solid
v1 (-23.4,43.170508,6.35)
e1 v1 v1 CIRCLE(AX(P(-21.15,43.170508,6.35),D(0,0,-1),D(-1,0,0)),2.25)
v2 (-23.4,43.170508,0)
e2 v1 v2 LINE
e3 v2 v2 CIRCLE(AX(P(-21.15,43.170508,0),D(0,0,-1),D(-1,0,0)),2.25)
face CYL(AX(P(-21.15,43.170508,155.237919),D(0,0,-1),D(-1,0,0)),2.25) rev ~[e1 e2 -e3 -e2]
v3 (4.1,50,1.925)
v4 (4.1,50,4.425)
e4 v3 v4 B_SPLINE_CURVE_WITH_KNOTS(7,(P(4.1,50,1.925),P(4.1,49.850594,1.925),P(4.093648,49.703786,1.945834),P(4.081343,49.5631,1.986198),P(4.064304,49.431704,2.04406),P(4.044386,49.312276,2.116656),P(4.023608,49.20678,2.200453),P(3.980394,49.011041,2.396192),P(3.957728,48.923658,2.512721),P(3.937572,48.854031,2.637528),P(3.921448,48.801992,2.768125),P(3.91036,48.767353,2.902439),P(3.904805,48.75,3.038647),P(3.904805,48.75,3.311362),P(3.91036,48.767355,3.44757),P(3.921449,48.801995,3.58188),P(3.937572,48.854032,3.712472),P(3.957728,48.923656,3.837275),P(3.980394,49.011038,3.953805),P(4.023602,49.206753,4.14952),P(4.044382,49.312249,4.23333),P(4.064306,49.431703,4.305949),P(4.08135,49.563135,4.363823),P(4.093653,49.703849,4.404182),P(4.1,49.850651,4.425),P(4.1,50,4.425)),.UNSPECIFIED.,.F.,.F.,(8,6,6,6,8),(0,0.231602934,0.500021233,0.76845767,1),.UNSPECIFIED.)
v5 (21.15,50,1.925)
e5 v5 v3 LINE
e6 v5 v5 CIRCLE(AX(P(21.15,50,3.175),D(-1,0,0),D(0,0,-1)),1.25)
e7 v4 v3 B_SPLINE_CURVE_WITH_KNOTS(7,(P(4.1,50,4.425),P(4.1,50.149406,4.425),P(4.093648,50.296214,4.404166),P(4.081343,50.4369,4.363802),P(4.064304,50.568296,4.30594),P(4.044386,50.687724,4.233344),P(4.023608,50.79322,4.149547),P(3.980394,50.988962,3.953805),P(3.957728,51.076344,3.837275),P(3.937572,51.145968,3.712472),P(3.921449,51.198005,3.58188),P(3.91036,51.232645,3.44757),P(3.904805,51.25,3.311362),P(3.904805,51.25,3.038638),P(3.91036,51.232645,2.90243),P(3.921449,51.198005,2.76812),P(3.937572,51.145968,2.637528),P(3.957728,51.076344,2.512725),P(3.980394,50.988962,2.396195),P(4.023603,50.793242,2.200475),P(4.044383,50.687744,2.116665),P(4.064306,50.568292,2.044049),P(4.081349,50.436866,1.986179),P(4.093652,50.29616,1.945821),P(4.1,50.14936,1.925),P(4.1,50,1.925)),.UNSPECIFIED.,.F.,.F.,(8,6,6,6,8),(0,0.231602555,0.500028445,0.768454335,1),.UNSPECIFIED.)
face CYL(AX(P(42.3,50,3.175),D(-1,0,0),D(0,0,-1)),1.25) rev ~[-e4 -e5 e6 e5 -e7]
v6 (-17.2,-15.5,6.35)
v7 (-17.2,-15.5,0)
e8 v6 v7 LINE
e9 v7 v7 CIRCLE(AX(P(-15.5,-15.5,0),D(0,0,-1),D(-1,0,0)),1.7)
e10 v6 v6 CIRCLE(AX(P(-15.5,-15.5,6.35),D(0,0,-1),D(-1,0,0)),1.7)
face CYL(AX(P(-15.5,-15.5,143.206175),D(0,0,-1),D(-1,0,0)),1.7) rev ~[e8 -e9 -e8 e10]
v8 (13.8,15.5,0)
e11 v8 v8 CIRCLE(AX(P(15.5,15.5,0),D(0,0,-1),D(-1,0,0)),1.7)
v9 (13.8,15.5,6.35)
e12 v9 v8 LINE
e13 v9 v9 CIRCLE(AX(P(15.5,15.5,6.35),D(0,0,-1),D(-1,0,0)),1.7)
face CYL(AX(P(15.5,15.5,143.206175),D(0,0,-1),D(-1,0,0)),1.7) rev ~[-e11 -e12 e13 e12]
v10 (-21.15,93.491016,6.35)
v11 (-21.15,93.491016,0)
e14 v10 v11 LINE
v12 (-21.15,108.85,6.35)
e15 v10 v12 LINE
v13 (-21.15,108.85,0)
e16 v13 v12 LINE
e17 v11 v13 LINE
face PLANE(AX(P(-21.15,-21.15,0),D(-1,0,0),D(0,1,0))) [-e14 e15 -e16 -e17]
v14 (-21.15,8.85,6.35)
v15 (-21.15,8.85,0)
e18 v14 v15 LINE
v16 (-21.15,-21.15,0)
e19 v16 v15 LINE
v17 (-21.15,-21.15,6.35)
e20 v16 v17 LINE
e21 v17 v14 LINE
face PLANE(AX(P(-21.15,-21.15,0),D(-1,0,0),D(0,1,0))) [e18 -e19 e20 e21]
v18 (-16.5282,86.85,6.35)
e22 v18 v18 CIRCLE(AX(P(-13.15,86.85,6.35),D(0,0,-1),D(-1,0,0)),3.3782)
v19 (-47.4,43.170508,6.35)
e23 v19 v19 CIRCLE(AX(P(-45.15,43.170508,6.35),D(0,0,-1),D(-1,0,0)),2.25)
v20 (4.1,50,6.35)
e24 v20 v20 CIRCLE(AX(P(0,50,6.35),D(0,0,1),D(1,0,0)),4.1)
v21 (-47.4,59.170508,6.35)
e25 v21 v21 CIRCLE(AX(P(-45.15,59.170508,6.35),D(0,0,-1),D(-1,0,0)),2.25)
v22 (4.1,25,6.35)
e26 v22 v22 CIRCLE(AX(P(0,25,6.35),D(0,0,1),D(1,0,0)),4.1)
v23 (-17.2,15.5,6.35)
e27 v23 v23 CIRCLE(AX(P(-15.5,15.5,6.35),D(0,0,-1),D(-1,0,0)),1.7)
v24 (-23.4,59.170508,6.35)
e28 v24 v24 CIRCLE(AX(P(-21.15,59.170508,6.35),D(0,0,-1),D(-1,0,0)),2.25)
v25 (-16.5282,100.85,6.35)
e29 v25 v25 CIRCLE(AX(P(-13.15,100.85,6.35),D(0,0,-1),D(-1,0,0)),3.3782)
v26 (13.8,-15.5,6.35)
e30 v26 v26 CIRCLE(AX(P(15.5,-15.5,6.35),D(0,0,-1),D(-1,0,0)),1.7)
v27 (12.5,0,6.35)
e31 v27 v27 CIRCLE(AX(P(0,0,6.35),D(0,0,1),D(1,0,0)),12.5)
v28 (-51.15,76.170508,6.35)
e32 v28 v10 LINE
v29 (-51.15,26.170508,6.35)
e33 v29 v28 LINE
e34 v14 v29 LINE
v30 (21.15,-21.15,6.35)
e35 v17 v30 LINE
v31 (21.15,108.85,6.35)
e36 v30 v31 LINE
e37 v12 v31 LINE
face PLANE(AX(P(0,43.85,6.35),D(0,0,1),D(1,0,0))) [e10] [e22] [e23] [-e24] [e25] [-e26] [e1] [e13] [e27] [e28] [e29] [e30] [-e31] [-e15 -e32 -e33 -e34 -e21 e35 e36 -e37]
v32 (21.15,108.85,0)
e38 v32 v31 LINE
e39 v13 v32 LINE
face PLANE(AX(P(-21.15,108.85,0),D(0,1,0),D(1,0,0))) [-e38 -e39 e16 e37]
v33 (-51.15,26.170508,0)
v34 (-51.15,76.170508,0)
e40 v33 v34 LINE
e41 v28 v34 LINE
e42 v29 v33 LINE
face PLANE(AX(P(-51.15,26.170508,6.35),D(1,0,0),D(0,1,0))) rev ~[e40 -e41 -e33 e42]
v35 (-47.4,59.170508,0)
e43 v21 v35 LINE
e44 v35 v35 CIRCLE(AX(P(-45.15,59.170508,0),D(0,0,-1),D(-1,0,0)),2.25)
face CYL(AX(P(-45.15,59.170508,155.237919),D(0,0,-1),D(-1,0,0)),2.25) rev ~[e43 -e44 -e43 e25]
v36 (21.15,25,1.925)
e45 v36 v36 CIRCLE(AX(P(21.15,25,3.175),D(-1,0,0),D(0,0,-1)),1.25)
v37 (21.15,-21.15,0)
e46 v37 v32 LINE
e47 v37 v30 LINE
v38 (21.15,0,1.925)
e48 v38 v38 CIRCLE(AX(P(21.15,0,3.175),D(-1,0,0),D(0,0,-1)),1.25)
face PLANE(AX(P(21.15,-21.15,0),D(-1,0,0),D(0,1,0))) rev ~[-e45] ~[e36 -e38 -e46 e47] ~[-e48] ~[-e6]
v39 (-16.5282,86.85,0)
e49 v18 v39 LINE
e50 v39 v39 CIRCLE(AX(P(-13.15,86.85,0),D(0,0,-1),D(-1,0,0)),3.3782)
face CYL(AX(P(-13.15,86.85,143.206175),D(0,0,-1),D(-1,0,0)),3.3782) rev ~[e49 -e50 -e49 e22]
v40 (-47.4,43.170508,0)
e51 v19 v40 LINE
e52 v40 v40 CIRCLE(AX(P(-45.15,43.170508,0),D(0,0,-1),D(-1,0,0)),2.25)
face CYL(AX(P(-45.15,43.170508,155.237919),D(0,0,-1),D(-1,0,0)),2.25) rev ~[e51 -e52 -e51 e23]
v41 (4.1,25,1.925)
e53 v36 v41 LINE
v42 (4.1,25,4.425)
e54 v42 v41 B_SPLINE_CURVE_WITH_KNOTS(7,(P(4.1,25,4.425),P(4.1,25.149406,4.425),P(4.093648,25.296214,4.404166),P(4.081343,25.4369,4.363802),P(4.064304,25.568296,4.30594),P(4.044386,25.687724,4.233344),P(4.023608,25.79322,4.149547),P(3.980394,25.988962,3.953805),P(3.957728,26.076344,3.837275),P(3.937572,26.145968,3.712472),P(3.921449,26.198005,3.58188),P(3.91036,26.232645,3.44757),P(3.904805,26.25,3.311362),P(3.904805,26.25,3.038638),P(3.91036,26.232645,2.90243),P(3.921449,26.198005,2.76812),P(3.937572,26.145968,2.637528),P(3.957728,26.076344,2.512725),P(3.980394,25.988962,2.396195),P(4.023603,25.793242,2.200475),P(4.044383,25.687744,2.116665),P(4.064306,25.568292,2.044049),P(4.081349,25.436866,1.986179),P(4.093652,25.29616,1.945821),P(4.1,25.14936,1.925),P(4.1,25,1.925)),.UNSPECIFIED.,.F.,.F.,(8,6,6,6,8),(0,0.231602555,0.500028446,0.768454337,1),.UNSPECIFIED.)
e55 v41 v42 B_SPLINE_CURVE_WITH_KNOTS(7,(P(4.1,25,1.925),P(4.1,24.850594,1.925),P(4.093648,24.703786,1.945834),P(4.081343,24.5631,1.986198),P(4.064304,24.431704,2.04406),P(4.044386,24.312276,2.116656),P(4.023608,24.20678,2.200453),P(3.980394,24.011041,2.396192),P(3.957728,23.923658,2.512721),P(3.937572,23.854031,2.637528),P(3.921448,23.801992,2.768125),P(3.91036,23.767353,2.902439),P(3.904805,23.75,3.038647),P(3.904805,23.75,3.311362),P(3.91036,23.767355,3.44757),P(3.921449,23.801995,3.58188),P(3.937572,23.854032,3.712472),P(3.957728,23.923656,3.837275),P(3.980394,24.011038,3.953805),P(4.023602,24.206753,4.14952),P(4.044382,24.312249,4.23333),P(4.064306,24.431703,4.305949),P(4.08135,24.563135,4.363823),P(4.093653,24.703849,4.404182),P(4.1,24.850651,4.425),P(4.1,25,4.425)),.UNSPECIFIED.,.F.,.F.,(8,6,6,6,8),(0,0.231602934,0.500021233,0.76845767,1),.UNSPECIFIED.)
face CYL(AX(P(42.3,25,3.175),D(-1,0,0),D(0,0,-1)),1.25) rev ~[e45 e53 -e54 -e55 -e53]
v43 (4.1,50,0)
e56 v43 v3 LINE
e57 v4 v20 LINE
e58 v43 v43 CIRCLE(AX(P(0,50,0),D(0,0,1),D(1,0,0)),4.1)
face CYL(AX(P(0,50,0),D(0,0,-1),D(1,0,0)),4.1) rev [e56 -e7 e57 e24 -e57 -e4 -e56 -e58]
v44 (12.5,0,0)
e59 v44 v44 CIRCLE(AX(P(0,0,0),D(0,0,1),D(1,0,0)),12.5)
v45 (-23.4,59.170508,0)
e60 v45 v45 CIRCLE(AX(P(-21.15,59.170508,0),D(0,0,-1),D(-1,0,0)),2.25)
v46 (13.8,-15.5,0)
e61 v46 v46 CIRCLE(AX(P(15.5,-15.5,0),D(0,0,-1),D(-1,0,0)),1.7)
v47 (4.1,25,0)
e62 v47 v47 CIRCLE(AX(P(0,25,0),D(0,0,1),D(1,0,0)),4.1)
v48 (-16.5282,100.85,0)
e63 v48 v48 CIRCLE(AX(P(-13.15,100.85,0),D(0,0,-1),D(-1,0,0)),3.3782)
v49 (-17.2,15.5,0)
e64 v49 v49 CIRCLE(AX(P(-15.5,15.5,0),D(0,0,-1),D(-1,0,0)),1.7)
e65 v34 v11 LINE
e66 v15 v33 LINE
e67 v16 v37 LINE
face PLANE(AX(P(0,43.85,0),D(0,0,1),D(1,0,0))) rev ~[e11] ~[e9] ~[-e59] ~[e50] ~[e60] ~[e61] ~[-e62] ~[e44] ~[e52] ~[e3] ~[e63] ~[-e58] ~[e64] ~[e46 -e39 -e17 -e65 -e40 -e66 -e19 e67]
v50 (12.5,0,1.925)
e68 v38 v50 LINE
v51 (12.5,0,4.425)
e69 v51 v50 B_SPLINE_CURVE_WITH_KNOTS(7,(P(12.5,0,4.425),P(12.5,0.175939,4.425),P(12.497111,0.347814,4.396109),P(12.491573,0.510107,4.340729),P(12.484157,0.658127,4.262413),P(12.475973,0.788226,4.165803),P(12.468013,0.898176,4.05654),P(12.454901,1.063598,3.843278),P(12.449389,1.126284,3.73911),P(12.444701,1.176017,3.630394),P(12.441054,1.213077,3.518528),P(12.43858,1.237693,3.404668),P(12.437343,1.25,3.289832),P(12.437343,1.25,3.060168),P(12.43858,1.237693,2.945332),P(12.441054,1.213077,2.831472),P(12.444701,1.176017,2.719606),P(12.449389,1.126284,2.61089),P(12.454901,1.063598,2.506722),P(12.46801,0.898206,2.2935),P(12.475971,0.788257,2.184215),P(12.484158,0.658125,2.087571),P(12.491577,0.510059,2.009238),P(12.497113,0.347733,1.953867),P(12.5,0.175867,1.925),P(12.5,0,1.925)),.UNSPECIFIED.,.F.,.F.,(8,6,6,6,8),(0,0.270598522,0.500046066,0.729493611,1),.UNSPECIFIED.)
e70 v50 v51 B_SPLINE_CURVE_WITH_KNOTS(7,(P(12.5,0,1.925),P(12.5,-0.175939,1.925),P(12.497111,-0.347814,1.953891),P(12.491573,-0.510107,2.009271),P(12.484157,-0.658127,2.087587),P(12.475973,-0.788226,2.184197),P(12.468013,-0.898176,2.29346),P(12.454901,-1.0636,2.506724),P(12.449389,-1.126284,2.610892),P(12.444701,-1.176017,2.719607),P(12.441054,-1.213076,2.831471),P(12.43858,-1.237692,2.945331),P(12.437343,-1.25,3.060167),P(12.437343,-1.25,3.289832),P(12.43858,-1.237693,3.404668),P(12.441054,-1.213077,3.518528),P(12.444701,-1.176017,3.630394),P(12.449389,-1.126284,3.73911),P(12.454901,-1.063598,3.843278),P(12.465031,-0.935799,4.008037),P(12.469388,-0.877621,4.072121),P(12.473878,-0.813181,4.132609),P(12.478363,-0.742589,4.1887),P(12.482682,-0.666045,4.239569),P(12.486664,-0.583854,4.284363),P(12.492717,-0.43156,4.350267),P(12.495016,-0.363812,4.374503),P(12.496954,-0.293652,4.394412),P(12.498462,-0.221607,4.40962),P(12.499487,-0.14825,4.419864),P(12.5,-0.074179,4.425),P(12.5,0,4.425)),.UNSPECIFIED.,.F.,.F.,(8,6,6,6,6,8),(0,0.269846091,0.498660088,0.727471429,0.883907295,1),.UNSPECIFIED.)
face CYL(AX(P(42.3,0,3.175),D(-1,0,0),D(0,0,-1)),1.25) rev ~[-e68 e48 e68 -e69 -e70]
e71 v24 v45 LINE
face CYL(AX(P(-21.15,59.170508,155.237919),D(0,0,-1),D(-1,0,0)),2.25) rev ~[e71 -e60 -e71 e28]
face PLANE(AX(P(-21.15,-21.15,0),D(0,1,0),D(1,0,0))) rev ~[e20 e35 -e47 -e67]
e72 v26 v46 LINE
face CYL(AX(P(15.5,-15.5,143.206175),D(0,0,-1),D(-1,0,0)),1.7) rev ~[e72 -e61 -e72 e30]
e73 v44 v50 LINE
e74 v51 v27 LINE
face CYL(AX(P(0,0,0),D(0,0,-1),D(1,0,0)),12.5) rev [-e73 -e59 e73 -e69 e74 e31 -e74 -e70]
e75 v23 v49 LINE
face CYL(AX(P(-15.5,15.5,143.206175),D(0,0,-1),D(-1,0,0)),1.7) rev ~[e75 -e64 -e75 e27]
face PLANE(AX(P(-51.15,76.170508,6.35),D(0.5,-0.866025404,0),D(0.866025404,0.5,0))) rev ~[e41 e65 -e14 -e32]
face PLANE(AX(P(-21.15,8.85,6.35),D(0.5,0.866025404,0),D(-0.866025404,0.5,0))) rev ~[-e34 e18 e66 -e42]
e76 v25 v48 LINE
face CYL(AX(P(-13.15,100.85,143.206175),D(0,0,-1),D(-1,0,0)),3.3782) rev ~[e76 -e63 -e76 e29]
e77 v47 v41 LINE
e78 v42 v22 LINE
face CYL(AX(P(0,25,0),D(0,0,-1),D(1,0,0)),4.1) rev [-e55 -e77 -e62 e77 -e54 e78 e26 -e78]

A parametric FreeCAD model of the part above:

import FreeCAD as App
import Part
import Sketcher

V = App.Vector
Q = App.Units.Quantity


def add_polygon(sketch, points):
    """Adds a closed chain of lines whose ends are joined by coincident constraints."""
    first, n = sketch.GeometryCount, len(points)
    for a, b in zip(points, points[1:] + points[:1]):
        sketch.addGeometry(Part.LineSegment(App.Vector(*a, 0), App.Vector(*b, 0)), False)
    for i in range(n):
        sketch.addConstraint(Sketcher.Constraint("Coincident", first + i, 2, first + (i + 1) % n, 1))

doc = App.newDocument("Part")
body = doc.addObject("PartDesign::Body", "Body")

sketch1 = doc.addObject("Sketcher::SketchObject", "Sketch")
body.addObject(sketch1)
sketch1.AttachmentSupport = (doc.XY_Plane, [""])
sketch1.MapMode = "FlatFace"
add_polygon(sketch1, [(-21.15, 108.85), (-21.15, -21.15), (21.15, -21.15), (21.15, 108.85)])
sketch1.addGeometry(Part.Circle(V(0, 0, 0), V(0, 0, 1), 12.5), False)
sketch1.addGeometry(Part.Circle(V(0, 25, 0), V(0, 0, 1), 4.1), False)
sketch1.addGeometry(Part.Circle(V(0, 50, 0), V(0, 0, 1), 4.1), False)
sketch1.addConstraint([
    Sketcher.Constraint("Vertical", 0),
    Sketcher.Constraint("Horizontal", 1),
    Sketcher.Constraint("Vertical", 2),
    Sketcher.Constraint("Horizontal", 3),
    Sketcher.Constraint("Coincident", 4, 3, -1, 1),
    Sketcher.Constraint("Equal", 5, 6),
    Sketcher.Constraint("PointOnObject", 5, 3, -2),
    Sketcher.Constraint("PointOnObject", 6, 3, -2),
    Sketcher.Constraint("Diameter", 4, 25.0),
    Sketcher.Constraint("Diameter", 5, 8.2),
    Sketcher.Constraint("DistanceY", 0, 2, 0, 1, 130.0),
    Sketcher.Constraint("DistanceX", 1, 1, 1, 2, 42.3),
    Sketcher.Constraint("DistanceY", -1, 1, 5, 3, 25.0),
    Sketcher.Constraint("DistanceY", -1, 1, 6, 3, 50.0),
    Sketcher.Constraint("DistanceX", 0, 2, -1, 1, 21.15),
    Sketcher.Constraint("DistanceY", 0, 2, -1, 1, 21.15),
])
pad1 = doc.addObject("PartDesign::Pad", "Pad")
body.addObject(pad1)
pad1.Profile = sketch1
pad1.Length = 6.35

sketch2 = doc.addObject("Sketcher::SketchObject", "Sketch001")
body.addObject(sketch2)
sketch2.AttachmentSupport = (doc.YZ_Plane, [""])
sketch2.MapMode = "FlatFace"
sketch2.AttachmentOffset = App.Placement(V(0, 0, 21.15), App.Rotation())
sketch2.addGeometry([
    Part.Circle(V(50, 3.175, 0), V(0, 0, 1), 1.25),
    Part.Circle(V(0, 3.175, 0), V(0, 0, 1), 1.25),
    Part.Circle(V(25, 3.175, 0), V(0, 0, 1), 1.25),
], False)
sketch2.addConstraint([
    Sketcher.Constraint("Equal", 0, 1),
    Sketcher.Constraint("Equal", 1, 2),
    Sketcher.Constraint("PointOnObject", 1, 3, -2),
    Sketcher.Constraint("Horizontal", 0, 3, 1, 3),
    Sketcher.Constraint("Horizontal", 1, 3, 2, 3),
    Sketcher.Constraint("Diameter", 0, 2.5),
    Sketcher.Constraint("DistanceX", -1, 1, 0, 3, 50.0),
    Sketcher.Constraint("DistanceX", -1, 1, 2, 3, 25.0),
    Sketcher.Constraint("DistanceY", -1, 1, 0, 3, 3.175),
])
doc.recompute()
hole = doc.addObject("PartDesign::Hole", "Hole")
body.addObject(hole)
hole.Profile = sketch2
hole.ThreadType = "None"
hole.Diameter = 2.5
hole.DepthType = "Dimension"
hole.Depth = 21.15
hole.DrillPoint = "Angled"
hole.DrillPointAngle = 118

sketch3 = doc.addObject("Sketcher::SketchObject", "Sketch002")
body.addObject(sketch3)
sketch3.AttachmentSupport = (doc.XY_Plane, [""])
sketch3.MapMode = "FlatFace"
sketch3.AttachmentOffset = App.Placement(V(0, 0, 6.35), App.Rotation())
sketch3.addGeometry([
    Part.Circle(V(-15.5, 15.5, 0), V(0, 0, 1), 1.7),
    Part.Circle(V(-15.5, -15.5, 0), V(0, 0, 1), 1.7),
    Part.Circle(V(15.5, -15.5, 0), V(0, 0, 1), 1.7),
    Part.Circle(V(15.5, 15.5, 0), V(0, 0, 1), 1.7),
], False)
sketch3.addConstraint([
    Sketcher.Constraint("Equal", 0, 1),
    Sketcher.Constraint("Equal", 1, 2),
    Sketcher.Constraint("Equal", 2, 3),
    Sketcher.Constraint("Symmetric", 0, 3, 2, 3, -1, 1),
    Sketcher.Constraint("Symmetric", 1, 3, 3, 3, -1, 1),
    Sketcher.Constraint("Symmetric", 1, 3, 2, 3, -2),
    Sketcher.Constraint("Diameter", 0, 3.4),
    Sketcher.Constraint("DistanceY", 1, 3, 0, 3, 31.0),
    Sketcher.Constraint("DistanceX", 1, 3, 2, 3, 31.0),
])
doc.recompute()
hole2 = doc.addObject("PartDesign::Hole", "Hole001")
body.addObject(hole2)
hole2.Profile = sketch3
hole2.ThreadType = "None"
hole2.Diameter = 3.4
hole2.DepthType = "ThroughAll"

sketch4 = doc.addObject("Sketcher::SketchObject", "Sketch003")
body.addObject(sketch4)
sketch4.AttachmentSupport = (doc.XY_Plane, [""])
sketch4.MapMode = "FlatFace"
sketch4.AttachmentOffset = App.Placement(V(0, 0, 6.35), App.Rotation())
sketch4.addGeometry([
    Part.Circle(V(-13.15, 86.85, 0), V(0, 0, 1), 3.3782),
    Part.Circle(V(-13.15, 100.85, 0), V(0, 0, 1), 3.3782),
], False)
sketch4.addConstraint([
    Sketcher.Constraint("Equal", 0, 1),
    Sketcher.Constraint("Vertical", 0, 3, 1, 3),
    Sketcher.Constraint("DistanceY", 0, 3, 1, 3, 14.0),
    Sketcher.Constraint("Diameter", 0, 6.7564),
    Sketcher.Constraint("DistanceX", 0, 3, -1, 1, 13.15),
    Sketcher.Constraint("DistanceY", -1, 1, 0, 3, 86.85),
])
doc.recompute()
hole3 = doc.addObject("PartDesign::Hole", "Hole002")
body.addObject(hole3)
hole3.Profile = sketch4
hole3.ThreadType = "None"
hole3.Diameter = 6.7564
hole3.DepthType = "ThroughAll"

sketch5 = doc.addObject("Sketcher::SketchObject", "Sketch004")
body.addObject(sketch5)
sketch5.AttachmentSupport = (doc.XY_Plane, [""])
sketch5.MapMode = "FlatFace"
sketch5.AttachmentOffset = App.Placement(V(0, 0, 6.35), App.Rotation())
add_polygon(sketch5, [(-51.15, 26.170508), (-21.15, 8.85), (-21.15, 93.491016), (-51.15, 76.170508)])
sketch5.addConstraint([
    Sketcher.Constraint("Vertical", 1),
    Sketcher.Constraint("Vertical", 3),
    Sketcher.Constraint("Equal", 0, 2),
    Sketcher.Constraint("DistanceY", 3, 2, 3, 1, 50.0),
    Sketcher.Constraint("Angle", 0, Q("-30 deg")),
    Sketcher.Constraint("DistanceX", 2, 2, 1, 2, 30.0),
    Sketcher.Constraint("DistanceX", 0, 2, -1, 1, 21.15),
    Sketcher.Constraint("DistanceY", -1, 1, 0, 2, 8.85),
])
pad2 = doc.addObject("PartDesign::Pad", "Pad001")
body.addObject(pad2)
pad2.Profile = sketch5
pad2.Length = 6.35
pad2.Reversed = True

sketch6 = doc.addObject("Sketcher::SketchObject", "Sketch005")
body.addObject(sketch6)
sketch6.AttachmentSupport = (doc.XY_Plane, [""])
sketch6.MapMode = "FlatFace"
sketch6.AttachmentOffset = App.Placement(V(0, 0, 6.35), App.Rotation())
sketch6.addGeometry([
    Part.Circle(V(-45.15, 59.170508, 0), V(0, 0, 1), 2.25),
    Part.Circle(V(-21.15, 59.170508, 0), V(0, 0, 1), 2.25),
    Part.Circle(V(-21.15, 43.170508, 0), V(0, 0, 1), 2.25),
    Part.Circle(V(-45.15, 43.170508, 0), V(0, 0, 1), 2.25),
], False)
sketch6.addConstraint([
    Sketcher.Constraint("Equal", 0, 1),
    Sketcher.Constraint("Equal", 1, 2),
    Sketcher.Constraint("Equal", 2, 3),
    Sketcher.Constraint("Horizontal", 0, 3, 1, 3),
    Sketcher.Constraint("Horizontal", 2, 3, 3, 3),
    Sketcher.Constraint("Vertical", 1, 3, 2, 3),
    Sketcher.Constraint("Vertical", 0, 3, 3, 3),
    Sketcher.Constraint("Diameter", 0, 4.5),
    Sketcher.Constraint("DistanceX", 0, 3, 1, 3, 24.0),
    Sketcher.Constraint("DistanceY", 2, 3, 1, 3, 16.0),
    Sketcher.Constraint("DistanceX", 0, 3, -1, 1, 45.15),
    Sketcher.Constraint("DistanceY", -1, 1, 0, 3, 59.170508),
])
doc.recompute()
hole4 = doc.addObject("PartDesign::Hole", "Hole003")
body.addObject(hole4)
hole4.Profile = sketch6
hole4.ThreadType = "None"
hole4.Diameter = 4.5
hole4.DepthType = "ThroughAll"

doc.recompute()
